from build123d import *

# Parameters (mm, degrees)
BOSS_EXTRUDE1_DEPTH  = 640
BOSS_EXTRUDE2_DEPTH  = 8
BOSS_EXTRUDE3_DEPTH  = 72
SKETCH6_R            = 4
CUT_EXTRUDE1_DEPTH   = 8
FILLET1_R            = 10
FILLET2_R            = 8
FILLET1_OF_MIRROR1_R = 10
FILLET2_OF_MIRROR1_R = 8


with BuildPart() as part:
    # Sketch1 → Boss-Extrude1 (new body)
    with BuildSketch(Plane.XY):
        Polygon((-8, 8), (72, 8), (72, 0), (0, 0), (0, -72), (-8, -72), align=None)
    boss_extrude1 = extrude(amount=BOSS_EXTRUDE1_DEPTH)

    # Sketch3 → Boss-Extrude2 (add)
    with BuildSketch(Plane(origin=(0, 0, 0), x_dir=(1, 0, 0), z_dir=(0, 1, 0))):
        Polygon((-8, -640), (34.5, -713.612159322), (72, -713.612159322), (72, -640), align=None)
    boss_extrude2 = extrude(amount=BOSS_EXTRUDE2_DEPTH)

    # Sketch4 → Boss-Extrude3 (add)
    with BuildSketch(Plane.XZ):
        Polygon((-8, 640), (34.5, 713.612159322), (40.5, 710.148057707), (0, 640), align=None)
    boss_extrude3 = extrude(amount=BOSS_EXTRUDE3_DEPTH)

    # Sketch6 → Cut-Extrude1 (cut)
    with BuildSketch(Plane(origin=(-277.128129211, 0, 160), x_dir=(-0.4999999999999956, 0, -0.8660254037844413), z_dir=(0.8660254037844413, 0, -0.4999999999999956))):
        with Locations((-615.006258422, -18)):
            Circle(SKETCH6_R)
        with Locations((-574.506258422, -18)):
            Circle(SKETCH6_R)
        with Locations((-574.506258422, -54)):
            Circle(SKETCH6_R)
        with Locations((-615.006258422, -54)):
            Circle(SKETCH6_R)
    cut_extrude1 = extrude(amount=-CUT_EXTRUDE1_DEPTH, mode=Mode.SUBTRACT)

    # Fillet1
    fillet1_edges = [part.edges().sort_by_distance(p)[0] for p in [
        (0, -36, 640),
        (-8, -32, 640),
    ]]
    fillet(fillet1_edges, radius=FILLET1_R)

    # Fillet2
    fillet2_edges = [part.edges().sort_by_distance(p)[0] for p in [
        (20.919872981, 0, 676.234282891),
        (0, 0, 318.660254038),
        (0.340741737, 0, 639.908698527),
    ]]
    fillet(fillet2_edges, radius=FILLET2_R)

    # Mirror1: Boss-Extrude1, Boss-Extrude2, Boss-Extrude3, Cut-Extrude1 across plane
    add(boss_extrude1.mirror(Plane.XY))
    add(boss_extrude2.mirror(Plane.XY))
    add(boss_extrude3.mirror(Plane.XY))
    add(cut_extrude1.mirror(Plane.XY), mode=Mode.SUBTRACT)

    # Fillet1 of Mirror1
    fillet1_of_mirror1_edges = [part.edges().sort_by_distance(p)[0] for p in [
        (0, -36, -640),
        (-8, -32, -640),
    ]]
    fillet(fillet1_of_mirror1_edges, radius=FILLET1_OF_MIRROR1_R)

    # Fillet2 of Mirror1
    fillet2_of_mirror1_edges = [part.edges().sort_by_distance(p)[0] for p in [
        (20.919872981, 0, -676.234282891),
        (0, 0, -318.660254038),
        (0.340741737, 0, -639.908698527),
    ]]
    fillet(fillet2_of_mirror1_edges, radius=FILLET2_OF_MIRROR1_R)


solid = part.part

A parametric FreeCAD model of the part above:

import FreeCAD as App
import Part
import Sketcher
Q = App.Units.Quantity


def edges_at(feature, points):
    """Names of the edges that pass closest to the given points."""
    edges = feature.Shape.Edges
    near = lambda p: min(range(len(edges)), key=lambda i: edges[i].distToShape(Part.Vertex(*p))[0])
    return sorted({f"Edge{near(p) + 1}" for p in points})


def add_polygon(sketch, points):
    """Adds a closed chain of lines whose ends are joined by coincident constraints."""
    first, n = sketch.GeometryCount, len(points)
    for a, b in zip(points, points[1:] + points[:1]):
        sketch.addGeometry(Part.LineSegment(App.Vector(*a, 0), App.Vector(*b, 0)), False)
    for i in range(n):
        sketch.addConstraint(Sketcher.Constraint("Coincident", first + i, 2, first + (i + 1) % n, 1))

doc = App.newDocument("Part")
body = doc.addObject("PartDesign::Body", "Body")

sketch1 = doc.addObject("Sketcher::SketchObject", "Sketch")
body.addObject(sketch1)
sketch1.AttachmentSupport = (doc.XY_Plane, [""])
sketch1.MapMode = "FlatFace"
add_polygon(sketch1, [(72, 8), (-8, 8), (-8, -72), (0, -72), (0, 0), (72, 0)])
sketch1.addConstraint(Sketcher.Constraint("Horizontal", 0))
sketch1.addConstraint(Sketcher.Constraint("Vertical", 1))
sketch1.addConstraint(Sketcher.Constraint("Horizontal", 2))
sketch1.addConstraint(Sketcher.Constraint("Vertical", 3))
sketch1.addConstraint(Sketcher.Constraint("Horizontal", 4))
sketch1.addConstraint(Sketcher.Constraint("Vertical", 5))
sketch1.addConstraint(Sketcher.Constraint("Coincident", 3, 2, -1, 1))
sketch1.addConstraint(Sketcher.Constraint("Equal", 0, 1))
sketch1.addConstraint(Sketcher.Constraint("Equal", 4, 3))
sketch1.addConstraint(Sketcher.Constraint("DistanceX", 0, 2, 0, 1, 80.0))
sketch1.addConstraint(Sketcher.Constraint("DistanceX", 2, 1, 2, 2, 8.0))
pad1 = doc.addObject("PartDesign::Pad", "Pad")
body.addObject(pad1)
pad1.Profile = sketch1
pad1.Length = 640

sketch2 = doc.addObject("Sketcher::SketchObject", "Sketch001")
body.addObject(sketch2)
sketch2.AttachmentSupport = (doc.XZ_Plane, [""])
sketch2.MapMode = "FlatFace"
add_polygon(sketch2, [(-8, 640), (34, 714), (72, 714), (72, 640)])
sketch2.addConstraint(Sketcher.Constraint("Horizontal", 1))
sketch2.addConstraint(Sketcher.Constraint("Vertical", 2))
sketch2.addConstraint(Sketcher.Constraint("Horizontal", 3))
sketch2.addConstraint(Sketcher.Constraint("DistanceX", 3, 2, 3, 1, 80.0))
sketch2.addConstraint(Sketcher.Constraint("Angle", 0, Q("60 deg")))
sketch2.addConstraint(Sketcher.Constraint("Distance", 0, 85.0))
sketch2.addConstraint(Sketcher.Constraint("DistanceX", -1, 1, 1, 2, 72.0))
sketch2.addConstraint(Sketcher.Constraint("DistanceY", -1, 1, 2, 2, 640.0))
pad2 = doc.addObject("PartDesign::Pad", "Pad001")
body.addObject(pad2)
pad2.Profile = sketch2
pad2.Length = 8
pad2.Reversed = True

sketch3 = doc.addObject("Sketcher::SketchObject", "Sketch002")
body.addObject(sketch3)
sketch3.AttachmentSupport = (doc.XZ_Plane, [""])
sketch3.MapMode = "FlatFace"
add_polygon(sketch3, [(34, 714), (-8, 640), (0, 640), (40, 710)])
sketch3.addConstraint(Sketcher.Constraint("Horizontal", 1))
sketch3.addConstraint(Sketcher.Constraint("PointOnObject", 1, 2, -2))
sketch3.addConstraint(Sketcher.Constraint("Parallel", 0, 2))
sketch3.addConstraint(Sketcher.Constraint("Perpendicular", 2, 3))
sketch3.addConstraint(Sketcher.Constraint("DistanceX", 1, 1, 1, 2, 8.0))
sketch3.addConstraint(Sketcher.Constraint("Angle", 0, Q("-120 deg")))
sketch3.addConstraint(Sketcher.Constraint("Distance", 0, 85.0))
sketch3.addConstraint(Sketcher.Constraint("DistanceY", -1, 1, 0, 2, 640.0))
pad3 = doc.addObject("PartDesign::Pad", "Pad002")
body.addObject(pad3)
pad3.Profile = sketch3
pad3.Length = 72

sketch4 = doc.addObject("Sketcher::SketchObject", "Sketch003")
body.addObject(sketch4)
sketch4.Placement = App.Placement(App.Vector(-277.128129, 0, 160), App.Rotation(App.Vector(-0.5, 0, -0.866025404), App.Vector(0, 1, 0), App.Vector(0.866025404, 0, -0.5), "ZXY"))
sketch4.addGeometry(Part.Circle(App.Vector(-615, -18, 0), App.Vector(0, 0, 1), 4), False)
sketch4.addGeometry(Part.Circle(App.Vector(-574.5, -18, 0), App.Vector(0, 0, 1), 4), False)
sketch4.addGeometry(Part.Circle(App.Vector(-574.5, -54, 0), App.Vector(0, 0, 1), 4), False)
sketch4.addGeometry(Part.Circle(App.Vector(-615, -54, 0), App.Vector(0, 0, 1), 4), False)
sketch4.addConstraint(Sketcher.Constraint("Equal", 0, 1))
sketch4.addConstraint(Sketcher.Constraint("Equal", 1, 2))
sketch4.addConstraint(Sketcher.Constraint("Equal", 2, 3))
sketch4.addConstraint(Sketcher.Constraint("Horizontal", 0, 3, 1, 3))
sketch4.addConstraint(Sketcher.Constraint("Horizontal", 2, 3, 3, 3))
sketch4.addConstraint(Sketcher.Constraint("Vertical", 1, 3, 2, 3))
sketch4.addConstraint(Sketcher.Constraint("Vertical", 0, 3, 3, 3))
sketch4.addConstraint(Sketcher.Constraint("Diameter", 0, 8.0))
sketch4.addConstraint(Sketcher.Constraint("DistanceY", 0, 3, -1, 1, 18.0))
sketch4.addConstraint(Sketcher.Constraint("DistanceY", 2, 3, -1, 1, 54.0))
sketch4.addConstraint(Sketcher.Constraint("DistanceX", 0, 3, 1, 3, 40.5))
sketch4.addConstraint(Sketcher.Constraint("DistanceX", 0, 3, -1, 1, 615.006259))
pocket1 = doc.addObject("PartDesign::Pocket", "Pocket")
body.addObject(pocket1)
pocket1.Profile = sketch4
pocket1.Length = 8
doc.recompute()

fillet = doc.addObject("PartDesign::Fillet", "Fillet")
body.addObject(fillet)
fillet.Base = (pocket1, edges_at(pocket1, [(0, -36, 640), (-8, -32, 640)]))
fillet.Radius = 10
doc.recompute()

fillet2 = doc.addObject("PartDesign::Fillet", "Fillet001")
body.addObject(fillet2)
fillet2.Base = (fillet, edges_at(fillet, [(20.92, 0, 676.234), (0, 0, 318.66), (0.341, 0, 639.909)]))
fillet2.Radius = 8
doc.recompute()

mirrored = doc.addObject("PartDesign::Mirrored", "Mirrored")
body.addObject(mirrored)
mirrored.Originals = [pad1, pad2, pad3, pocket1]
mirrored.MirrorPlane = (doc.XY_Plane, [""])
body.Tip = mirrored
doc.recompute()

fillet3 = doc.addObject("PartDesign::Fillet", "Fillet002")
body.addObject(fillet3)
fillet3.Base = (mirrored, edges_at(mirrored, [(0, -36, -640), (-8, -32, -640)]))
fillet3.Radius = 10
doc.recompute()

fillet4 = doc.addObject("PartDesign::Fillet", "Fillet003")
body.addObject(fillet4)
fillet4.Base = (fillet3, edges_at(fillet3, [(20.92, 0, -676.234), (0, 0, -318.66), (0.341, 0, -639.909)]))
fillet4.Radius = 8

doc.recompute()
